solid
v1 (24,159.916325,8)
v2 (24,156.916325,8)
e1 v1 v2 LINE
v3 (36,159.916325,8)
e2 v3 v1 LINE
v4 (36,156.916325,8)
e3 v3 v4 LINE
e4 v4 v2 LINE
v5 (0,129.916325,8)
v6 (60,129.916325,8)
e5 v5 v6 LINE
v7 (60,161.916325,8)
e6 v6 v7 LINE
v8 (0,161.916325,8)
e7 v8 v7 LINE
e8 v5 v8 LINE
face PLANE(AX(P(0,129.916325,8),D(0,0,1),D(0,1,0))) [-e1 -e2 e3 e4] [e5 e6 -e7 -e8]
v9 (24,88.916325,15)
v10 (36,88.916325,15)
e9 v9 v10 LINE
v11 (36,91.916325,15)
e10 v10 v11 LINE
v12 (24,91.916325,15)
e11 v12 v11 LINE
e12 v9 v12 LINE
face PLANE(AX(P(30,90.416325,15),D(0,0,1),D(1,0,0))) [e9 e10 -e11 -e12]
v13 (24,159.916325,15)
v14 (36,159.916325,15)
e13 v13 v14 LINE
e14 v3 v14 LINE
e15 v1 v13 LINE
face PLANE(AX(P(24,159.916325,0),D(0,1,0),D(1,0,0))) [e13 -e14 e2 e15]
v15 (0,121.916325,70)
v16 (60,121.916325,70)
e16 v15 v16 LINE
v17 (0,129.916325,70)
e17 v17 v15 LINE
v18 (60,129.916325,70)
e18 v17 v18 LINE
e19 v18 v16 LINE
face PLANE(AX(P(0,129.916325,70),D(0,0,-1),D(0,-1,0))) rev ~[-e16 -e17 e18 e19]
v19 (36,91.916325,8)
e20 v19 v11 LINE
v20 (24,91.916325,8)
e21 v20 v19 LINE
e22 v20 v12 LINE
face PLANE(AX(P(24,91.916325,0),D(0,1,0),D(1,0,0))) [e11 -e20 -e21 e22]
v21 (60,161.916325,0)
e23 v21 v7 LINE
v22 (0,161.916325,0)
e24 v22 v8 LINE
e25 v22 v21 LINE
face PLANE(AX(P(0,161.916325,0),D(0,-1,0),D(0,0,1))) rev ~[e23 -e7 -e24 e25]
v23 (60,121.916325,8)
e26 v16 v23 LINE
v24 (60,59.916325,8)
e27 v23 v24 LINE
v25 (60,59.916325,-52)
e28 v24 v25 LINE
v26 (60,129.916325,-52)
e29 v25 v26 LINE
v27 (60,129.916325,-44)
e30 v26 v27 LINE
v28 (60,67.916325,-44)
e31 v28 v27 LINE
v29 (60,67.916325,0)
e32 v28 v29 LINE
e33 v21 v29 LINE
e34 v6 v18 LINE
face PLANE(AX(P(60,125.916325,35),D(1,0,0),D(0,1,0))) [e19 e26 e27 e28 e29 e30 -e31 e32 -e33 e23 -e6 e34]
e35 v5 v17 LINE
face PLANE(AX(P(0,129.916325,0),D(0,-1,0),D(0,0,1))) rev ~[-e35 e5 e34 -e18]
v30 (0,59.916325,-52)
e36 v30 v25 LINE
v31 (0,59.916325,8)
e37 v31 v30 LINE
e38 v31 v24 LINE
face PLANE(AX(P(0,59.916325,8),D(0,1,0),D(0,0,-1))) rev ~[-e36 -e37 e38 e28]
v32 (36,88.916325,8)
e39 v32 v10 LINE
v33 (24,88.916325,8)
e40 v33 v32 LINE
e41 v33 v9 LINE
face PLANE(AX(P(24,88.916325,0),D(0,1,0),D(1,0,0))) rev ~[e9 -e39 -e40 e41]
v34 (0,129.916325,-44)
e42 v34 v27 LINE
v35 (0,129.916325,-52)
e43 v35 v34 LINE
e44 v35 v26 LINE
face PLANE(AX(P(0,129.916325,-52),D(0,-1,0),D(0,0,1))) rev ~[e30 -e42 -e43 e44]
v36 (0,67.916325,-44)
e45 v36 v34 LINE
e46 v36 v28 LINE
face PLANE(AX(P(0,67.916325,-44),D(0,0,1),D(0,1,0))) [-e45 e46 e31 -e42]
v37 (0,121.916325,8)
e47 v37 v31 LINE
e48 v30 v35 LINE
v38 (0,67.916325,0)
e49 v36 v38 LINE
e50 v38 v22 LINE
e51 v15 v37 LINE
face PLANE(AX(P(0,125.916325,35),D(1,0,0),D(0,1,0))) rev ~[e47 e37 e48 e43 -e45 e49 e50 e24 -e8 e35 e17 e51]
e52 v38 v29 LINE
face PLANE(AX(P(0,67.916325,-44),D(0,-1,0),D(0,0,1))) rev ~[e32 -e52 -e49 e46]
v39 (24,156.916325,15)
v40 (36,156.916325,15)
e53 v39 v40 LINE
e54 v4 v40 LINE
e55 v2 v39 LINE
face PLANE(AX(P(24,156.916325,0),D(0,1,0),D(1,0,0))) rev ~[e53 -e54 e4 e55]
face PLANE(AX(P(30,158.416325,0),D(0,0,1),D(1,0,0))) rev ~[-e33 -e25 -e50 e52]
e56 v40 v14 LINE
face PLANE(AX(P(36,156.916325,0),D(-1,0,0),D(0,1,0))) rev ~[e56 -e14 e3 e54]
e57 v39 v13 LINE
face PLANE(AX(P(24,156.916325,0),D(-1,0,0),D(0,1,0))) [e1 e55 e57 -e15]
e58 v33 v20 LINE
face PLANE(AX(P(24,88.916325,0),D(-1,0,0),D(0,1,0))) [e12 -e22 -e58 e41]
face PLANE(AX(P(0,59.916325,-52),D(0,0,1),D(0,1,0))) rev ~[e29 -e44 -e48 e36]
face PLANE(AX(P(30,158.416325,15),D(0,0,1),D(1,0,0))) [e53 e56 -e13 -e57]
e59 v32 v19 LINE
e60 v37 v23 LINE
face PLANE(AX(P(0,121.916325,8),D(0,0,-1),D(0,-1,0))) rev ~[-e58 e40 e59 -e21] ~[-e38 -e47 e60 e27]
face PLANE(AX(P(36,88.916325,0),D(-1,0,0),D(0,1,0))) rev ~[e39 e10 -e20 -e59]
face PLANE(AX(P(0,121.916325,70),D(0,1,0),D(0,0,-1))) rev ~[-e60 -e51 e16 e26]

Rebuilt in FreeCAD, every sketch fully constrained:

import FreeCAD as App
import Part
import Sketcher
Q = App.Units.Quantity


def add_polygon(sketch, points):
    """Adds a closed chain of lines whose ends are joined by coincident constraints."""
    first, n = sketch.GeometryCount, len(points)
    for a, b in zip(points, points[1:] + points[:1]):
        sketch.addGeometry(Part.LineSegment(App.Vector(*a, 0), App.Vector(*b, 0)), False)
    for i in range(n):
        sketch.addConstraint(Sketcher.Constraint("Coincident", first + i, 2, first + (i + 1) % n, 1))

doc = App.newDocument("Part")
body = doc.addObject("PartDesign::Body", "Body")

# Sketch on YZ plane
sketch1 = doc.addObject("Sketcher::SketchObject", "Sketch")
body.addObject(sketch1)
sketch1.AttachmentSupport = (doc.YZ_Plane, [""])
sketch1.MapMode = "FlatFace"
add_polygon(sketch1, [(129.916325, 0), (129.916325, 70), (121.916325, 70), (121.916325, 8), (59.916325, 8), (59.916325, -52), (129.916325, -52), (129.916325, -44), (67.916325, -44), (67.916325, 0)])  # lines 0-9
sketch1.addConstraint([
    Sketcher.Constraint("Vertical", 0),
    Sketcher.Constraint("Horizontal", 1),
    Sketcher.Constraint("Vertical", 2),
    Sketcher.Constraint("Horizontal", 3),
    Sketcher.Constraint("Vertical", 4),
    Sketcher.Constraint("Horizontal", 5),
    Sketcher.Constraint("Vertical", 6),
    Sketcher.Constraint("Horizontal", 7),
    Sketcher.Constraint("Vertical", 8),
    Sketcher.Constraint("Horizontal", 9),
    Sketcher.Constraint("PointOnObject", 8, 2, -1),
    Sketcher.Constraint("Vertical", 0, 2, 5, 2),
    Sketcher.Constraint("Equal", 3, 7),
    Sketcher.Constraint("Equal", 5, 0),
    Sketcher.Constraint("Equal", 9, 2),
    Sketcher.Constraint("Equal", 1, 6),
    Sketcher.Constraint("DistanceX", 1, 2, 1, 1, Q("8 mm")),
    Sketcher.Constraint("DistanceX", 3, 2, 3, 1, Q("62 mm")),
    Sketcher.Constraint("DistanceY", 4, 2, 4, 1, Q("60 mm")),
    Sketcher.Constraint("DistanceX", -1, 1, 0, 2, Q("129.916325 mm")),
])
pad1 = doc.addObject("PartDesign::Pad", "Pad")
body.addObject(pad1)
pad1.Profile = sketch1
pad1.Length = 60

# Sketch on XY plane
sketch2 = doc.addObject("Sketcher::SketchObject", "Sketch001")
body.addObject(sketch2)
sketch2.AttachmentSupport = (doc.XY_Plane, [""])
sketch2.MapMode = "FlatFace"
add_polygon(sketch2, [(24, 91.916325), (24, 88.916325), (36, 88.916325), (36, 91.916325)])  # lines 0-3
sketch2.addConstraint([
    Sketcher.Constraint("Vertical", 0),
    Sketcher.Constraint("Horizontal", 1),
    Sketcher.Constraint("Vertical", 2),
    Sketcher.Constraint("Horizontal", 3),
    Sketcher.Constraint("DistanceX", 1, 1, 1, 2, Q("12 mm")),
    Sketcher.Constraint("DistanceY", 0, 2, 0, 1, Q("3 mm")),
    Sketcher.Constraint("DistanceX", -1, 1, 0, 2, Q("24 mm")),
    Sketcher.Constraint("DistanceY", -1, 1, 0, 2, Q("88.916325 mm")),
])
pad2 = doc.addObject("PartDesign::Pad", "Pad001")
body.addObject(pad2)
pad2.Profile = sketch2
pad2.Length = 15

# Sketch on YZ plane
sketch3 = doc.addObject("Sketcher::SketchObject", "Sketch002")
body.addObject(sketch3)
sketch3.AttachmentSupport = (doc.YZ_Plane, [""])
sketch3.MapMode = "FlatFace"
add_polygon(sketch3, [(121.916325, 70), (121.916325, 8), (59.916325, 8), (59.916325, -52), (129.916325, -52), (129.916325, -44), (67.916325, -44), (67.916325, 0), (161.916325, 0), (161.916325, 8), (129.916325, 8), (129.916325, 70)])  # lines 0-11
sketch3.addConstraint([
    Sketcher.Constraint("Vertical", 0),
    Sketcher.Constraint("Horizontal", 1),
    Sketcher.Constraint("Vertical", 2),
    Sketcher.Constraint("Horizontal", 3),
    Sketcher.Constraint("Vertical", 4),
    Sketcher.Constraint("Horizontal", 5),
    Sketcher.Constraint("Vertical", 6),
    Sketcher.Constraint("Horizontal", 7),
    Sketcher.Constraint("Vertical", 8),
    Sketcher.Constraint("Horizontal", 9),
    Sketcher.Constraint("Vertical", 10),
    Sketcher.Constraint("Horizontal", 11),
    Sketcher.Constraint("PointOnObject", 6, 2, -1),
    Sketcher.Constraint("Horizontal", 1, 2, 8, 2),
    Sketcher.Constraint("Vertical", 4, 2, 9, 2),
    Sketcher.Constraint("Equal", 1, 5),
    Sketcher.Constraint("Equal", 5, 0),
    Sketcher.Constraint("Equal", 11, 4),
    Sketcher.Constraint("Equal", 4, 8),
    Sketcher.Constraint("DistanceX", 1, 2, 1, 1, Q("62 mm")),
    Sketcher.Constraint("DistanceX", 3, 1, 3, 2, Q("70 mm")),
    Sketcher.Constraint("DistanceX", 7, 1, 7, 2, Q("94 mm")),
    Sketcher.Constraint("DistanceY", 2, 2, 2, 1, Q("60 mm")),
    Sketcher.Constraint("DistanceX", -1, 1, 0, 2, Q("121.916325 mm")),
])
pad3 = doc.addObject("PartDesign::Pad", "Pad002")
body.addObject(pad3)
pad3.Profile = sketch3
pad3.Length = 60

# Sketch on XY plane
sketch4 = doc.addObject("Sketcher::SketchObject", "Sketch003")
body.addObject(sketch4)
sketch4.AttachmentSupport = (doc.XY_Plane, [""])
sketch4.MapMode = "FlatFace"
add_polygon(sketch4, [(24, 159.916325), (24, 156.916325), (36, 156.916325), (36, 159.916325)])  # lines 0-3
sketch4.addConstraint([
    Sketcher.Constraint("Vertical", 0),
    Sketcher.Constraint("Horizontal", 1),
    Sketcher.Constraint("Vertical", 2),
    Sketcher.Constraint("Horizontal", 3),
    Sketcher.Constraint("DistanceX", 1, 1, 1, 2, Q("12 mm")),
    Sketcher.Constraint("DistanceY", 0, 2, 0, 1, Q("3 mm")),
    Sketcher.Constraint("DistanceX", -1, 1, 0, 2, Q("24 mm")),
    Sketcher.Constraint("DistanceY", -1, 1, 0, 2, Q("156.916325 mm")),
])
pad4 = doc.addObject("PartDesign::Pad", "Pad003")
body.addObject(pad4)
pad4.Profile = sketch4
pad4.Length = 15

doc.recompute()
